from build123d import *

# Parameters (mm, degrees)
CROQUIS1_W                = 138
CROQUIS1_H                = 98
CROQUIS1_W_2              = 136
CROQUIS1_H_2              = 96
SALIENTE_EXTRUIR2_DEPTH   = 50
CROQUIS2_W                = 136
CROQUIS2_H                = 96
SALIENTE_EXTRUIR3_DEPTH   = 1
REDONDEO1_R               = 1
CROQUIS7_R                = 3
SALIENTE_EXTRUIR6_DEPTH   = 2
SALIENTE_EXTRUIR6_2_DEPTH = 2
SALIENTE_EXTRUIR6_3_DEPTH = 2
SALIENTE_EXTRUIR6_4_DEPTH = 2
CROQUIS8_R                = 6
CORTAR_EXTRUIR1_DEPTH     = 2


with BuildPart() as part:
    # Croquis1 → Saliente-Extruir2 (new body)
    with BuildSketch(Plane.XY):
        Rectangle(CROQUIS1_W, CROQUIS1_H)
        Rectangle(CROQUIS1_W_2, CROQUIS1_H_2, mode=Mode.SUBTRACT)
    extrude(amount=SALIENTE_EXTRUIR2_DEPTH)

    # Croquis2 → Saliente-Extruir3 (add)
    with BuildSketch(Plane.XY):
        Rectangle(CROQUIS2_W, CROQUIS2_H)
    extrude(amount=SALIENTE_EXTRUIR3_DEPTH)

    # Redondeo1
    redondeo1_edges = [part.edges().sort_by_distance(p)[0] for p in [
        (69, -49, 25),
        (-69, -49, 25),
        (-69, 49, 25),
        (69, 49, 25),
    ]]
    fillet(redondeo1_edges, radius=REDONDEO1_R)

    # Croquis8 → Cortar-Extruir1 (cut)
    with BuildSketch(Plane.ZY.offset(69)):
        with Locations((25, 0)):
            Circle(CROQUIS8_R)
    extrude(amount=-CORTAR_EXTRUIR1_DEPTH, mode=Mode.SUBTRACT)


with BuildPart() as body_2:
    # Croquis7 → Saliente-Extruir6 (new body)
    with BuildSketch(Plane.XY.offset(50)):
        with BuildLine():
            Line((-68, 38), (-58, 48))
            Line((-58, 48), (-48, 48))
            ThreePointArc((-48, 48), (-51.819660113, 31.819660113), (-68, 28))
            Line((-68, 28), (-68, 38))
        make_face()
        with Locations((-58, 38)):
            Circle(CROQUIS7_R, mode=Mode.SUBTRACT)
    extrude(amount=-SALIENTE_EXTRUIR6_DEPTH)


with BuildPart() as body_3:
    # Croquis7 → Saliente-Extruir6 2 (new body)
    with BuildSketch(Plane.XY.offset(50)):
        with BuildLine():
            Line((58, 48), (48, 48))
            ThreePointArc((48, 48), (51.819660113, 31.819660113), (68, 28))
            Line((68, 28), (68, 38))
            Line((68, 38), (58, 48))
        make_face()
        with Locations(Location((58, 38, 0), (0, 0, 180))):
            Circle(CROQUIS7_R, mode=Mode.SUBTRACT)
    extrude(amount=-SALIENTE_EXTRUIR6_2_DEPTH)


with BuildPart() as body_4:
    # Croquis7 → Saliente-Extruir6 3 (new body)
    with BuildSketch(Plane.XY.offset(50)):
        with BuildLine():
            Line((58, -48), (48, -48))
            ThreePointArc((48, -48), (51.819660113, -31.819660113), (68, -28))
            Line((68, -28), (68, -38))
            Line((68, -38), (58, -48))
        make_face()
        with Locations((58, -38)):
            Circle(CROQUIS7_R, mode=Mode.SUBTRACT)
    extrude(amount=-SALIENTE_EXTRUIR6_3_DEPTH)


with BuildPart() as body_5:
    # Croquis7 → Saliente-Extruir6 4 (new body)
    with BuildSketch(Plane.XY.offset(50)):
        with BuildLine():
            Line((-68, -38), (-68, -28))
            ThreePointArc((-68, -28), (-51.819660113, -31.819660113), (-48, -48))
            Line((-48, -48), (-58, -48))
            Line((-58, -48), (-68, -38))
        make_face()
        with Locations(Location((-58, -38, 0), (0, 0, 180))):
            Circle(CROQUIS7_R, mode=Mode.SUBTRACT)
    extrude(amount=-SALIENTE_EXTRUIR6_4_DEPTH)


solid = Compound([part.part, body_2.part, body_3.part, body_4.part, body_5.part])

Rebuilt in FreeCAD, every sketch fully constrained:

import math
import FreeCAD as App
import Part
import Sketcher
Q = App.Units.Quantity


def edges_at(feature, points):
    """Names of the edges that pass closest to the given points."""
    edges = feature.Shape.Edges
    near = lambda p: min(range(len(edges)), key=lambda i: edges[i].distToShape(Part.Vertex(*p))[0])
    return sorted({f"Edge{near(p) + 1}" for p in points})

doc = App.newDocument("Part")
body = doc.addObject("PartDesign::Body", "Body")

sketch1 = body.newObject("Sketcher::SketchObject", "Sketch")
sketch1.AttachmentSupport = (doc.getObject("XY_Plane"), [""])
sketch1.MapMode = "FlatFace"
sketch1.addGeometry([
    Part.LineSegment(App.Vector(-69, 49, 0), App.Vector(-69, -49, 0)),
    Part.LineSegment(App.Vector(-69, -49, 0), App.Vector(69, -49, 0)),
    Part.LineSegment(App.Vector(69, -49, 0), App.Vector(69, 49, 0)),
    Part.LineSegment(App.Vector(69, 49, 0), App.Vector(-69, 49, 0)),
    Part.LineSegment(App.Vector(68, -48, 0), App.Vector(-68, -48, 0)),
    Part.LineSegment(App.Vector(-68, -48, 0), App.Vector(-68, 48, 0)),
    Part.LineSegment(App.Vector(-68, 48, 0), App.Vector(68, 48, 0)),
    Part.LineSegment(App.Vector(68, 48, 0), App.Vector(68, -48, 0)),
], False)
sketch1.addConstraint([
    Sketcher.Constraint("Coincident", 0, 2, 1, 1),
    Sketcher.Constraint("Coincident", 1, 2, 2, 1),
    Sketcher.Constraint("Coincident", 2, 2, 3, 1),
    Sketcher.Constraint("Coincident", 3, 2, 0, 1),
    Sketcher.Constraint("Coincident", 4, 2, 5, 1),
    Sketcher.Constraint("Coincident", 5, 2, 6, 1),
    Sketcher.Constraint("Coincident", 6, 2, 7, 1),
    Sketcher.Constraint("Coincident", 7, 2, 4, 1),
    Sketcher.Constraint("Vertical", 0),
    Sketcher.Constraint("Horizontal", 1),
    Sketcher.Constraint("Vertical", 2),
    Sketcher.Constraint("Horizontal", 3),
    Sketcher.Constraint("Horizontal", 4),
    Sketcher.Constraint("Vertical", 5),
    Sketcher.Constraint("Horizontal", 6),
    Sketcher.Constraint("Vertical", 7),
    Sketcher.Constraint("Symmetric", 0, 2, 2, 2, -1, 1),
    Sketcher.Constraint("Symmetric", 4, 2, 6, 2, -1, 1),
    Sketcher.Constraint("DistanceX", 1, 1, 1, 2, 138.0),
    Sketcher.Constraint("DistanceX", 4, 2, 4, 1, 136.0),
    Sketcher.Constraint("DistanceY", 0, 2, 0, 1, 98.0),
    Sketcher.Constraint("DistanceY", 5, 1, 5, 2, 96.0),
])
pad1 = body.newObject("PartDesign::Pad", "Pad")
pad1.Profile = sketch1
pad1.Length = 50

sketch2 = body.newObject("Sketcher::SketchObject", "Sketch001")
sketch2.AttachmentSupport = (doc.getObject("XY_Plane"), [""])
sketch2.MapMode = "FlatFace"
sketch2.addGeometry([
    Part.LineSegment(App.Vector(-68, 48, 0), App.Vector(-68, -48, 0)),
    Part.LineSegment(App.Vector(-68, -48, 0), App.Vector(68, -48, 0)),
    Part.LineSegment(App.Vector(68, -48, 0), App.Vector(68, 48, 0)),
    Part.LineSegment(App.Vector(68, 48, 0), App.Vector(-68, 48, 0)),
], False)
sketch2.addConstraint([
    Sketcher.Constraint("Coincident", 0, 2, 1, 1),
    Sketcher.Constraint("Coincident", 1, 2, 2, 1),
    Sketcher.Constraint("Coincident", 2, 2, 3, 1),
    Sketcher.Constraint("Coincident", 3, 2, 0, 1),
    Sketcher.Constraint("Vertical", 0),
    Sketcher.Constraint("Horizontal", 1),
    Sketcher.Constraint("Vertical", 2),
    Sketcher.Constraint("Horizontal", 3),
    Sketcher.Constraint("Symmetric", 0, 2, 2, 2, -1, 1),
    Sketcher.Constraint("DistanceX", 1, 1, 1, 2, 136.0),
    Sketcher.Constraint("DistanceY", 0, 2, 0, 1, 96.0),
])
pad2 = body.newObject("PartDesign::Pad", "Pad001")
pad2.Profile = sketch2
pad2.Length = 1
doc.recompute()

fillet = body.newObject("PartDesign::Fillet", "Fillet")
fillet.Base = (pad2, edges_at(pad2, [
    (69, -49, 25),
    (-69, -49, 25),
    (-69, 49, 25),
    (69, 49, 25),
]))
fillet.Radius = 1

sketch3 = body.newObject("Sketcher::SketchObject", "Sketch002")
sketch3.AttachmentSupport = (doc.getObject("YZ_Plane"), [""])
sketch3.MapMode = "FlatFace"
sketch3.AttachmentOffset = App.Placement(App.Vector(0, 0, -69), App.Rotation())
sketch3.addGeometry(Part.Circle(App.Vector(0, 25, 0), App.Vector(0, 0, 1), 6), False)
sketch3.addConstraint([
    Sketcher.Constraint("PointOnObject", 0, 3, -2),
    Sketcher.Constraint("Diameter", 0, 12.0),
    Sketcher.Constraint("DistanceY", -1, 1, 0, 3, 25.0),
])
pocket1 = body.newObject("PartDesign::Pocket", "Pocket")
pocket1.Profile = sketch3
pocket1.Length = 2
pocket1.Reversed = True
body2 = doc.addObject("PartDesign::Body", "Body001")

sketch4 = body2.newObject("Sketcher::SketchObject", "Sketch003")
sketch4.AttachmentSupport = (doc.getObject("XY_Plane001"), [""])
sketch4.MapMode = "FlatFace"
sketch4.AttachmentOffset = App.Placement(App.Vector(0, 0, 50), App.Rotation())
sketch4.addGeometry([
    Part.LineSegment(App.Vector(-58, 48, 0), App.Vector(-68, 38, 0)),
    Part.LineSegment(App.Vector(-68, 38, 0), App.Vector(-68, 28, 0)),
    Part.ArcOfCircle(Part.Circle(App.Vector(-63, 43, 0), App.Vector(0, 0, 1), 15.811388), math.radians(-108.434949), math.radians(18.434949)),
    Part.LineSegment(App.Vector(-48, 48, 0), App.Vector(-58, 48, 0)),
    Part.Circle(App.Vector(-58, 38, 0), App.Vector(0, 0, 1), 3),
], False)
sketch4.addConstraint([
    Sketcher.Constraint("Coincident", 0, 2, 1, 1),
    Sketcher.Constraint("Coincident", 1, 2, 2, 1),
    Sketcher.Constraint("Coincident", 2, 2, 3, 1),
    Sketcher.Constraint("Coincident", 3, 2, 0, 1),
    Sketcher.Constraint("Vertical", 1),
    Sketcher.Constraint("Horizontal", 3),
    Sketcher.Constraint("Horizontal", 4, 3, 0, 2),
    Sketcher.Constraint("Vertical", 4, 3, 3, 2),
    Sketcher.Constraint("Equal", 3, 1),
    Sketcher.Constraint("Diameter", 4, 6.0),
    Sketcher.Constraint("DistanceX", 3, 2, 3, 1, 10.0),
    Sketcher.Constraint("Angle", 0, Q("-135 deg")),
    Sketcher.Constraint("DistanceX", 2, 3, -1, 1, 63.0),
    Sketcher.Constraint("DistanceY", -1, 1, 2, 3, 43.0),
    Sketcher.Constraint("DistanceX", 4, 3, -1, 1, 58.0),
    Sketcher.Constraint("DistanceX", 0, 2, -1, 1, 68.0),
])
pad3 = body2.newObject("PartDesign::Pad", "Pad002")
pad3.Profile = sketch4
pad3.Length = 2
pad3.Reversed = True
body3 = doc.addObject("PartDesign::Body", "Body002")

sketch5 = body3.newObject("Sketcher::SketchObject", "Sketch004")
sketch5.AttachmentSupport = (doc.getObject("XY_Plane002"), [""])
sketch5.MapMode = "FlatFace"
sketch5.AttachmentOffset = App.Placement(App.Vector(0, 0, 50), App.Rotation())
sketch5.addGeometry([
    Part.LineSegment(App.Vector(58, 48, 0), App.Vector(48, 48, 0)),
    Part.ArcOfCircle(Part.Circle(App.Vector(63, 43, 0), App.Vector(0, 0, 1), 15.811388), math.radians(161.565051), math.radians(288.434949)),
    Part.LineSegment(App.Vector(68, 28, 0), App.Vector(68, 38, 0)),
    Part.LineSegment(App.Vector(68, 38, 0), App.Vector(58, 48, 0)),
    Part.Circle(App.Vector(58, 38, 0), App.Vector(0, 0, 1), 3),
], False)
sketch5.addConstraint([
    Sketcher.Constraint("Coincident", 0, 2, 1, 1),
    Sketcher.Constraint("Coincident", 1, 2, 2, 1),
    Sketcher.Constraint("Coincident", 2, 2, 3, 1),
    Sketcher.Constraint("Coincident", 3, 2, 0, 1),
    Sketcher.Constraint("Horizontal", 0),
    Sketcher.Constraint("Vertical", 2),
    Sketcher.Constraint("Horizontal", 4, 3, 2, 2),
    Sketcher.Constraint("Vertical", 4, 3, 3, 2),
    Sketcher.Constraint("Equal", 0, 2),
    Sketcher.Constraint("Diameter", 4, 6.0),
    Sketcher.Constraint("DistanceX", 0, 2, 0, 1, 10.0),
    Sketcher.Constraint("Angle", 3, Q("135 deg")),
    Sketcher.Constraint("DistanceX", -1, 1, 1, 3, 63.0),
    Sketcher.Constraint("DistanceY", -1, 1, 1, 3, 43.0),
    Sketcher.Constraint("DistanceX", -1, 1, 4, 3, 58.0),
    Sketcher.Constraint("DistanceY", -1, 1, 0, 2, 48.0),
])
pad4 = body3.newObject("PartDesign::Pad", "Pad003")
pad4.Profile = sketch5
pad4.Length = 2
pad4.Reversed = True
body4 = doc.addObject("PartDesign::Body", "Body003")

sketch6 = body4.newObject("Sketcher::SketchObject", "Sketch005")
sketch6.AttachmentSupport = (doc.getObject("XY_Plane003"), [""])
sketch6.MapMode = "FlatFace"
sketch6.AttachmentOffset = App.Placement(App.Vector(0, 0, 50), App.Rotation())
sketch6.addGeometry([
    Part.LineSegment(App.Vector(48, -48, 0), App.Vector(58, -48, 0)),
    Part.LineSegment(App.Vector(58, -48, 0), App.Vector(68, -38, 0)),
    Part.LineSegment(App.Vector(68, -38, 0), App.Vector(68, -28, 0)),
    Part.ArcOfCircle(Part.Circle(App.Vector(63, -43, 0), App.Vector(0, 0, 1), 15.811388), math.radians(71.565051), math.radians(198.434949)),
    Part.Circle(App.Vector(58, -38, 0), App.Vector(0, 0, 1), 3),
], False)
sketch6.addConstraint([
    Sketcher.Constraint("Coincident", 0, 2, 1, 1),
    Sketcher.Constraint("Coincident", 1, 2, 2, 1),
    Sketcher.Constraint("Coincident", 2, 2, 3, 1),
    Sketcher.Constraint("Coincident", 3, 2, 0, 1),
    Sketcher.Constraint("Horizontal", 0),
    Sketcher.Constraint("Vertical", 2),
    Sketcher.Constraint("Horizontal", 4, 3, 1, 2),
    Sketcher.Constraint("Vertical", 4, 3, 0, 2),
    Sketcher.Constraint("Equal", 0, 2),
    Sketcher.Constraint("Diameter", 4, 6.0),
    Sketcher.Constraint("DistanceX", 0, 1, 0, 2, 10.0),
    Sketcher.Constraint("Angle", 1, Q("45 deg")),
    Sketcher.Constraint("DistanceX", -1, 1, 3, 3, 63.0),
    Sketcher.Constraint("DistanceY", 3, 3, -1, 1, 43.0),
    Sketcher.Constraint("DistanceX", -1, 1, 4, 3, 58.0),
    Sketcher.Constraint("DistanceY", 0, 2, -1, 1, 48.0),
])
pad5 = body4.newObject("PartDesign::Pad", "Pad004")
pad5.Profile = sketch6
pad5.Length = 2
pad5.Reversed = True
body5 = doc.addObject("PartDesign::Body", "Body004")

sketch7 = body5.newObject("Sketcher::SketchObject", "Sketch006")
sketch7.AttachmentSupport = (doc.getObject("XY_Plane004"), [""])
sketch7.MapMode = "FlatFace"
sketch7.AttachmentOffset = App.Placement(App.Vector(0, 0, 50), App.Rotation())
sketch7.addGeometry([
    Part.LineSegment(App.Vector(-68, -28, 0), App.Vector(-68, -38, 0)),
    Part.LineSegment(App.Vector(-68, -38, 0), App.Vector(-58, -48, 0)),
    Part.LineSegment(App.Vector(-58, -48, 0), App.Vector(-48, -48, 0)),
    Part.ArcOfCircle(Part.Circle(App.Vector(-63, -43, 0), App.Vector(0, 0, 1), 15.811388), math.radians(-18.434949), math.radians(108.434949)),
    Part.Circle(App.Vector(-58, -38, 0), App.Vector(0, 0, 1), 3),
], False)
sketch7.addConstraint([
    Sketcher.Constraint("Coincident", 0, 2, 1, 1),
    Sketcher.Constraint("Coincident", 1, 2, 2, 1),
    Sketcher.Constraint("Coincident", 2, 2, 3, 1),
    Sketcher.Constraint("Coincident", 3, 2, 0, 1),
    Sketcher.Constraint("Vertical", 0),
    Sketcher.Constraint("Horizontal", 2),
    Sketcher.Constraint("Horizontal", 4, 3, 0, 2),
    Sketcher.Constraint("Vertical", 4, 3, 1, 2),
    Sketcher.Constraint("Equal", 2, 0),
    Sketcher.Constraint("Diameter", 4, 6.0),
    Sketcher.Constraint("DistanceX", 2, 1, 2, 2, 10.0),
    Sketcher.Constraint("Angle", 1, Q("-45 deg")),
    Sketcher.Constraint("DistanceX", 3, 3, -1, 1, 63.0),
    Sketcher.Constraint("DistanceY", 3, 3, -1, 1, 43.0),
    Sketcher.Constraint("DistanceX", 4, 3, -1, 1, 58.0),
    Sketcher.Constraint("DistanceX", 0, 2, -1, 1, 68.0),
])
pad6 = body5.newObject("PartDesign::Pad", "Pad005")
pad6.Profile = sketch7
pad6.Length = 2
pad6.Reversed = True

doc.recompute()
